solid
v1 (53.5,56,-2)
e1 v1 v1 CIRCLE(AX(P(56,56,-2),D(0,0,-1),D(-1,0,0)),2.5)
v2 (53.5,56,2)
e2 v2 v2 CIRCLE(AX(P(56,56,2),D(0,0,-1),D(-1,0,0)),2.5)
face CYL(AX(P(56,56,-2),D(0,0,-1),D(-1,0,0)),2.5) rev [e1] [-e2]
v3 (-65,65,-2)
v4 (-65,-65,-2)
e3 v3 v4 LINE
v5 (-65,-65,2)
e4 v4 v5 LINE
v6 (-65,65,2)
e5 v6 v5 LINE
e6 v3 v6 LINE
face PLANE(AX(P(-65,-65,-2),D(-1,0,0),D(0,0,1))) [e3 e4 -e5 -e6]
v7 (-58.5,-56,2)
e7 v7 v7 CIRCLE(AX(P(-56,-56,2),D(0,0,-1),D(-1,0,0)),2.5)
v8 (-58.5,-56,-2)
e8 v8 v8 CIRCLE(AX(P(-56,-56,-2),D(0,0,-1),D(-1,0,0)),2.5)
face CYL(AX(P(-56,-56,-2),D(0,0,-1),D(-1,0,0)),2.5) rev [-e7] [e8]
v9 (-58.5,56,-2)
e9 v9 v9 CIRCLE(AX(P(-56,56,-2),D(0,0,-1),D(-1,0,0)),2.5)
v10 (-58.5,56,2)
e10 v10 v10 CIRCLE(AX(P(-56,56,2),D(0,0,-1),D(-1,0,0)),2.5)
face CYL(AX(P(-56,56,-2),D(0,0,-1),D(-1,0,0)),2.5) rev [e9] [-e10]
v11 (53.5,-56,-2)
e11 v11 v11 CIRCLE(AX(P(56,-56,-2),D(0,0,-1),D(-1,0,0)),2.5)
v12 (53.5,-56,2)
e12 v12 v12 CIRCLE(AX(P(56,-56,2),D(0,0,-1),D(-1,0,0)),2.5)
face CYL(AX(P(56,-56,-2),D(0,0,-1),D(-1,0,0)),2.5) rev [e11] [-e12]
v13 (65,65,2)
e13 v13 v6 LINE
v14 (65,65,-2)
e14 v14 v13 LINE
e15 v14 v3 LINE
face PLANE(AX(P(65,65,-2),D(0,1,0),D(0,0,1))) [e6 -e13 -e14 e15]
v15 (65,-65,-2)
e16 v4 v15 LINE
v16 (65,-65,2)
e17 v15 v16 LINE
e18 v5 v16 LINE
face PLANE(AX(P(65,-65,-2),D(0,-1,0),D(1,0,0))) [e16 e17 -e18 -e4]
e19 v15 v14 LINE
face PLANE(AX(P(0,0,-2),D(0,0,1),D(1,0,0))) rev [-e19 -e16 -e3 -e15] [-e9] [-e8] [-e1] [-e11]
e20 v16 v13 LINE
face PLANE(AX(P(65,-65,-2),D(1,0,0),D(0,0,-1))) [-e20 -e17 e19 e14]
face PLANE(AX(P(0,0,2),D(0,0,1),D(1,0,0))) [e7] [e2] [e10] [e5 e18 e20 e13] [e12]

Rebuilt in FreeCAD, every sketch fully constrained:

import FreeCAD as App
import Part
import Sketcher
from FreeCAD import Vector


def add_polygon(sketch, points):
    """Adds a closed chain of lines whose ends are joined by coincident constraints."""
    first, n = sketch.GeometryCount, len(points)
    for a, b in zip(points, points[1:] + points[:1]):
        sketch.addGeometry(Part.LineSegment(App.Vector(*a, 0), App.Vector(*b, 0)), False)
    for i in range(n):
        sketch.addConstraint(Sketcher.Constraint("Coincident", first + i, 2, first + (i + 1) % n, 1))

doc = App.newDocument("Part")
body = doc.addObject("PartDesign::Body", "Body")

# Sketch on XY plane
sketch1 = body.newObject("Sketcher::SketchObject", "Sketch")
sketch1.AttachmentSupport = (doc.getObject("XY_Plane"), [""])
sketch1.MapMode = "FlatFace"
add_polygon(sketch1, [(-65, 65), (-65, -65), (65, -65), (65, 65)])  # lines 0-3
sketch1.addConstraint([
    Sketcher.Constraint("Vertical", 0),
    Sketcher.Constraint("Horizontal", 1),
    Sketcher.Constraint("Vertical", 2),
    Sketcher.Constraint("Horizontal", 3),
    Sketcher.Constraint("Symmetric", 0, 2, 2, 2, -1, 1),
    Sketcher.Constraint("Equal", 3, 0),
    Sketcher.Constraint("DistanceX", 1, 1, 1, 2, 130.0),
])
pad1 = body.newObject("PartDesign::Pad", "Pad")
pad1.Profile = sketch1
pad1.Type = "TwoLengths"
pad1.Length = 2
pad1.Length2 = 2

# Sketch on XY plane
sketch2 = body.newObject("Sketcher::SketchObject", "Sketch001")
sketch2.AttachmentSupport = (doc.getObject("XY_Plane"), [""])
sketch2.MapMode = "FlatFace"
sketch2.AttachmentOffset = App.Placement(Vector(0, 0, -2), App.Rotation())
sketch2.addGeometry([
    Part.Circle(Vector(56, 56, 0), Vector(0, 0, 1), 2.5),
    Part.Circle(Vector(-56, 56, 0), Vector(0, 0, 1), 2.5),
    Part.Circle(Vector(-56, -56, 0), Vector(0, 0, 1), 2.5),
    Part.Circle(Vector(56, -56, 0), Vector(0, 0, 1), 2.5),
], False)
sketch2.addConstraint([
    Sketcher.Constraint("Equal", 0, 1),
    Sketcher.Constraint("Equal", 1, 2),
    Sketcher.Constraint("Equal", 2, 3),
    Sketcher.Constraint("Symmetric", 0, 3, 2, 3, -1, 1),
    Sketcher.Constraint("Symmetric", 1, 3, 3, 3, -1, 1),
    Sketcher.Constraint("Symmetric", 0, 3, 1, 3, -2),
    Sketcher.Constraint("Diameter", 0, 5.0),
    Sketcher.Constraint("DistanceX", -1, 1, 0, 3, 56.0),
    Sketcher.Constraint("DistanceY", -1, 1, 0, 3, 56.0),
])
doc.recompute()
hole = body.newObject("PartDesign::Hole", "Hole")
hole.Profile = sketch2
hole.ThreadType = "None"
hole.Diameter = 5
hole.DepthType = "ThroughAll"
hole.Reversed = True

doc.recompute()
